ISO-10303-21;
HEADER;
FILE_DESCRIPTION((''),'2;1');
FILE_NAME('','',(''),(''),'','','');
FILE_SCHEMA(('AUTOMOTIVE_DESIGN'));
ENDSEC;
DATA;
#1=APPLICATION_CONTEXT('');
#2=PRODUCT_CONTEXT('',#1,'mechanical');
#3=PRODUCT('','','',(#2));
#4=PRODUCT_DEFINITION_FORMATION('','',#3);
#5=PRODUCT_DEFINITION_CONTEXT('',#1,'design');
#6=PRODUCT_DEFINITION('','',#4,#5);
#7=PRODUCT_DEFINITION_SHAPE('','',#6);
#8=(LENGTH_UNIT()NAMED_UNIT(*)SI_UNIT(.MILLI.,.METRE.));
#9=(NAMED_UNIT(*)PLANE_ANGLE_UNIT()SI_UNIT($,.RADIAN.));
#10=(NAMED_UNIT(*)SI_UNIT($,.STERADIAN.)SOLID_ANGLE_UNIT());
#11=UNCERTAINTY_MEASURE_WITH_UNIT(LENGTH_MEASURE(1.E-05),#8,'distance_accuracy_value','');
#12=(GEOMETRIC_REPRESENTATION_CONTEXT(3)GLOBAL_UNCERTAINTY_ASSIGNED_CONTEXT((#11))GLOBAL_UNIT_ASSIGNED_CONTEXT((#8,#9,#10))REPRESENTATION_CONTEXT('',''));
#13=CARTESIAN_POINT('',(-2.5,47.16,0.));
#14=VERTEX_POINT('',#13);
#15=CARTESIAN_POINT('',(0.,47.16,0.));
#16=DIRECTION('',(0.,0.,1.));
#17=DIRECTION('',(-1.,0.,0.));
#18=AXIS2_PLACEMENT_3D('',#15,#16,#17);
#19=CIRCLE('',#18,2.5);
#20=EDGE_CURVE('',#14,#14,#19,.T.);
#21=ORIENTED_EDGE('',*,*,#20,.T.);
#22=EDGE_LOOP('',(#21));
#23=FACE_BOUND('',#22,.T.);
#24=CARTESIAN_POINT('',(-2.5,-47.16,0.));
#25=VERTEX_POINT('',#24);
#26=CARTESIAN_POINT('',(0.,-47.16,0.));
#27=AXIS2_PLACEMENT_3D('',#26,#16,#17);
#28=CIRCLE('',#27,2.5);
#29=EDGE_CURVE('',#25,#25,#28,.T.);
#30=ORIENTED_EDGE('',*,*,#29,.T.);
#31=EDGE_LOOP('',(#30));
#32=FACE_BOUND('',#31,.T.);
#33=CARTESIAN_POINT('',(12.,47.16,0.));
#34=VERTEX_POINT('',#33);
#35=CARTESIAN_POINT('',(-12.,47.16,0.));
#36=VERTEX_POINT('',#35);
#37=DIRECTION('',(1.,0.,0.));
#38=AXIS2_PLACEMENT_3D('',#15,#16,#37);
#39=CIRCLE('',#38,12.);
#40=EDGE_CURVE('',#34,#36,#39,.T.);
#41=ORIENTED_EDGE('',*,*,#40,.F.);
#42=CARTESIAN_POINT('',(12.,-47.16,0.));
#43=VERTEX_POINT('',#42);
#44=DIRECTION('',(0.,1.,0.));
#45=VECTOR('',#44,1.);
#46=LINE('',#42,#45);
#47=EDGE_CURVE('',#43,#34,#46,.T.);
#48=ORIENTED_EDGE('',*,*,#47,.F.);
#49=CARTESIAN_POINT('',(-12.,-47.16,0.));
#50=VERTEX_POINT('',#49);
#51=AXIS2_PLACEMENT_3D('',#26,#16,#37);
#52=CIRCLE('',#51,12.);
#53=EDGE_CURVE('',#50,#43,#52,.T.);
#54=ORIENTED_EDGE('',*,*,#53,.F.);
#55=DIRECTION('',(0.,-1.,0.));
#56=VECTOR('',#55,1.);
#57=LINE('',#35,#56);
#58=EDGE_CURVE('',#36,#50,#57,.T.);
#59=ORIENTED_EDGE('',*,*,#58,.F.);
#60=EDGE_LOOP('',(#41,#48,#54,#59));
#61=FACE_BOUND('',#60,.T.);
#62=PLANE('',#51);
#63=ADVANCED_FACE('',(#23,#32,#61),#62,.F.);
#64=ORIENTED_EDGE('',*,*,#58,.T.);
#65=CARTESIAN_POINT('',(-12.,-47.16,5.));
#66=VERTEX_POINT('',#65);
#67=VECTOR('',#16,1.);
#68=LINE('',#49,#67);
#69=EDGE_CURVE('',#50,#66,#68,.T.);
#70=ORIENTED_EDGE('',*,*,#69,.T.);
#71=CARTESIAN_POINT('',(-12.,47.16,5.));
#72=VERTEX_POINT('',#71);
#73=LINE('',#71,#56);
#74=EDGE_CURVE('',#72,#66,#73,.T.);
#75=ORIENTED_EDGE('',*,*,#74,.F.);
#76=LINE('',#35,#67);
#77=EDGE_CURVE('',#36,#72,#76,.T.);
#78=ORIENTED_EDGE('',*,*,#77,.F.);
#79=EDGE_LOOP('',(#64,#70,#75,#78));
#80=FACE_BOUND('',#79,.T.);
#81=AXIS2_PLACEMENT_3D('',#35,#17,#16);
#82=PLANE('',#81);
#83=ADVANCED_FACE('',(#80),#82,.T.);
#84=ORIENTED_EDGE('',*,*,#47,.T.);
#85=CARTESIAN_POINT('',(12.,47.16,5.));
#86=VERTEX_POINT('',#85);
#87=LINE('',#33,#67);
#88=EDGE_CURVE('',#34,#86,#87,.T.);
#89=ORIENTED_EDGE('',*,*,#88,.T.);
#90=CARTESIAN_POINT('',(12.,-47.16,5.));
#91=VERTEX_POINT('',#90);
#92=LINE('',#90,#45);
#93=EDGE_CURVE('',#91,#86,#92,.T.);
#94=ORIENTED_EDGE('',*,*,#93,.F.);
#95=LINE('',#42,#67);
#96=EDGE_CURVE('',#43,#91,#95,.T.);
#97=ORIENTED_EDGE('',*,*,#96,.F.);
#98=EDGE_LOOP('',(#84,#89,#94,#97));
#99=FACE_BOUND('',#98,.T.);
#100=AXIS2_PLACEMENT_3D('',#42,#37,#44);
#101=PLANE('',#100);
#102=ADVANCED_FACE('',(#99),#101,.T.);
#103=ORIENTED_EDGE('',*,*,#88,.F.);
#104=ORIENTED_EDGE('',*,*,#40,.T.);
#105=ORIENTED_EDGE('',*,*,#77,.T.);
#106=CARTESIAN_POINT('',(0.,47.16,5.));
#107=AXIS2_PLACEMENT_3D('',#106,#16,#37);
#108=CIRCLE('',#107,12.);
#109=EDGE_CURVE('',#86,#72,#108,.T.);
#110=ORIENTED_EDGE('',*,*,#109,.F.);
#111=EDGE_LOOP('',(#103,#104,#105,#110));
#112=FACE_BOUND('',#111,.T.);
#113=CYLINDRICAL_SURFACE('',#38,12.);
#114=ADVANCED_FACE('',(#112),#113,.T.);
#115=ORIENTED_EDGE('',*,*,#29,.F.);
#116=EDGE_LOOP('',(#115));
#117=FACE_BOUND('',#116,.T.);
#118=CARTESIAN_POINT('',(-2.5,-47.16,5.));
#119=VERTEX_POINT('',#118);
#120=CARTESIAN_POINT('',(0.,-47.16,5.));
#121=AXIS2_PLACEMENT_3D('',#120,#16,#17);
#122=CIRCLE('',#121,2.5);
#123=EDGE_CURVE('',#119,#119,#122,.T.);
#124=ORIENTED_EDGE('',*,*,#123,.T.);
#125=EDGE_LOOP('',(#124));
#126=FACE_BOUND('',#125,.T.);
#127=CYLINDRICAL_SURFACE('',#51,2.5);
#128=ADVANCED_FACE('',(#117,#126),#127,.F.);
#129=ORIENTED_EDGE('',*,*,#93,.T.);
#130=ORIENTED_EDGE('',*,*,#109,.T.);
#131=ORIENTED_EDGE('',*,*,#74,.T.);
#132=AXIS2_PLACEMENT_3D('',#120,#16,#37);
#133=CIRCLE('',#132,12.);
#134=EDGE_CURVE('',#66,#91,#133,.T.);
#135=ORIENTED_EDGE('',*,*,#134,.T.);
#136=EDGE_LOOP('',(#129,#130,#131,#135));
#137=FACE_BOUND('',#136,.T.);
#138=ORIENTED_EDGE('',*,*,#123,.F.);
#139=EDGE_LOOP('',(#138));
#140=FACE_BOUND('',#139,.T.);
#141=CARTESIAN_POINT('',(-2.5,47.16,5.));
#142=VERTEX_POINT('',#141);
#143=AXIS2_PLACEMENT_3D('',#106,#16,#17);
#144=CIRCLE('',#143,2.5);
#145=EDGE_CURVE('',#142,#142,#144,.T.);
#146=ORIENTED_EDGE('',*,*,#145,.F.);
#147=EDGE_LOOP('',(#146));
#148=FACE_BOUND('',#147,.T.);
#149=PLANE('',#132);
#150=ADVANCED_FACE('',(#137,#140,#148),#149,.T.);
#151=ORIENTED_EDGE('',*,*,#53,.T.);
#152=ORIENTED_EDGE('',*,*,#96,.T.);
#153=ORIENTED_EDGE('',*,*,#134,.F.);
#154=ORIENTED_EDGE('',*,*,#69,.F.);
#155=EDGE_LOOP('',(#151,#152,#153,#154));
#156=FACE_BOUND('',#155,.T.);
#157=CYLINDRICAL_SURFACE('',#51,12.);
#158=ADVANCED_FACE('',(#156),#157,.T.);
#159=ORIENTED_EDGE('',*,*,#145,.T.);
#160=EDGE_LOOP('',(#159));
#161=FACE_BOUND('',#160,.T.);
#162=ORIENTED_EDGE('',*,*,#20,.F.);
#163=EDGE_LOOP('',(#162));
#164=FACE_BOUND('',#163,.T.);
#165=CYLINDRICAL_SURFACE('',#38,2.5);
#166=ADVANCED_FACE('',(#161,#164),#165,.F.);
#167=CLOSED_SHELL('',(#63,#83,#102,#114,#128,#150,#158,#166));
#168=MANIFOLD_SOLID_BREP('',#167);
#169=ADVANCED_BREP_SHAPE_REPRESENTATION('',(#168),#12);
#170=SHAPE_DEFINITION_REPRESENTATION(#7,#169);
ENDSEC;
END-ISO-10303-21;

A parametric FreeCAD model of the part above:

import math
import FreeCAD as App
import Part
import Sketcher
Q = App.Units.Quantity

doc = App.newDocument("Part")
body = doc.addObject("PartDesign::Body", "Body")

# Sketch on XY plane
sketch1 = body.newObject("Sketcher::SketchObject", "Sketch")
sketch1.AttachmentSupport = (doc.getObject("XY_Plane"), [""])
sketch1.MapMode = "FlatFace"
sketch1.AttachmentOffset = App.Placement(App.Vector(0, 0, 5), App.Rotation())
sketch1.addGeometry([
    Part.LineSegment(App.Vector(12, -47.16, 0), App.Vector(12, 47.16, 0)),  # 0
    Part.ArcOfCircle(Part.Circle(App.Vector(0, 47.16, 0), App.Vector(0, 0, 1), 12), math.radians(0), math.radians(180)),  # 1
    Part.LineSegment(App.Vector(-12, 47.16, 0), App.Vector(-12, -47.16, 0)),  # 2
    Part.ArcOfCircle(Part.Circle(App.Vector(0, -47.16, 0), App.Vector(0, 0, 1), 12), math.radians(180), math.radians(360)),  # 3
    Part.Circle(App.Vector(0, -47.16, 0), App.Vector(0, 0, 1), 2.5),  # 4
    Part.Circle(App.Vector(0, 47.16, 0), App.Vector(0, 0, 1), 2.5),  # 5
], False)
sketch1.addConstraint([
    Sketcher.Constraint("Tangent", 0, 2, 1, 1),
    Sketcher.Constraint("Tangent", 1, 2, 2, 1),
    Sketcher.Constraint("Tangent", 2, 2, 3, 1),
    Sketcher.Constraint("Tangent", 3, 2, 0, 1),
    Sketcher.Constraint("Vertical", 0),
    Sketcher.Constraint("Vertical", 2),
    Sketcher.Constraint("Coincident", 4, 3, 3, 3),
    Sketcher.Constraint("Coincident", 5, 3, 1, 3),
    Sketcher.Constraint("Equal", 4, 5),
    Sketcher.Constraint("Symmetric", 1, 3, 3, 3, -1, 1),
    Sketcher.Constraint("Diameter", 4, Q("5 mm")),
    Sketcher.Constraint("Radius", 1, Q("12 mm")),
    Sketcher.Constraint("DistanceY", 0, 1, 0, 2, Q("94.32 mm")),
])
pad1 = body.newObject("PartDesign::Pad", "Pad")
pad1.Profile = sketch1
pad1.Length = 5
pad1.Reversed = True

doc.recompute()
